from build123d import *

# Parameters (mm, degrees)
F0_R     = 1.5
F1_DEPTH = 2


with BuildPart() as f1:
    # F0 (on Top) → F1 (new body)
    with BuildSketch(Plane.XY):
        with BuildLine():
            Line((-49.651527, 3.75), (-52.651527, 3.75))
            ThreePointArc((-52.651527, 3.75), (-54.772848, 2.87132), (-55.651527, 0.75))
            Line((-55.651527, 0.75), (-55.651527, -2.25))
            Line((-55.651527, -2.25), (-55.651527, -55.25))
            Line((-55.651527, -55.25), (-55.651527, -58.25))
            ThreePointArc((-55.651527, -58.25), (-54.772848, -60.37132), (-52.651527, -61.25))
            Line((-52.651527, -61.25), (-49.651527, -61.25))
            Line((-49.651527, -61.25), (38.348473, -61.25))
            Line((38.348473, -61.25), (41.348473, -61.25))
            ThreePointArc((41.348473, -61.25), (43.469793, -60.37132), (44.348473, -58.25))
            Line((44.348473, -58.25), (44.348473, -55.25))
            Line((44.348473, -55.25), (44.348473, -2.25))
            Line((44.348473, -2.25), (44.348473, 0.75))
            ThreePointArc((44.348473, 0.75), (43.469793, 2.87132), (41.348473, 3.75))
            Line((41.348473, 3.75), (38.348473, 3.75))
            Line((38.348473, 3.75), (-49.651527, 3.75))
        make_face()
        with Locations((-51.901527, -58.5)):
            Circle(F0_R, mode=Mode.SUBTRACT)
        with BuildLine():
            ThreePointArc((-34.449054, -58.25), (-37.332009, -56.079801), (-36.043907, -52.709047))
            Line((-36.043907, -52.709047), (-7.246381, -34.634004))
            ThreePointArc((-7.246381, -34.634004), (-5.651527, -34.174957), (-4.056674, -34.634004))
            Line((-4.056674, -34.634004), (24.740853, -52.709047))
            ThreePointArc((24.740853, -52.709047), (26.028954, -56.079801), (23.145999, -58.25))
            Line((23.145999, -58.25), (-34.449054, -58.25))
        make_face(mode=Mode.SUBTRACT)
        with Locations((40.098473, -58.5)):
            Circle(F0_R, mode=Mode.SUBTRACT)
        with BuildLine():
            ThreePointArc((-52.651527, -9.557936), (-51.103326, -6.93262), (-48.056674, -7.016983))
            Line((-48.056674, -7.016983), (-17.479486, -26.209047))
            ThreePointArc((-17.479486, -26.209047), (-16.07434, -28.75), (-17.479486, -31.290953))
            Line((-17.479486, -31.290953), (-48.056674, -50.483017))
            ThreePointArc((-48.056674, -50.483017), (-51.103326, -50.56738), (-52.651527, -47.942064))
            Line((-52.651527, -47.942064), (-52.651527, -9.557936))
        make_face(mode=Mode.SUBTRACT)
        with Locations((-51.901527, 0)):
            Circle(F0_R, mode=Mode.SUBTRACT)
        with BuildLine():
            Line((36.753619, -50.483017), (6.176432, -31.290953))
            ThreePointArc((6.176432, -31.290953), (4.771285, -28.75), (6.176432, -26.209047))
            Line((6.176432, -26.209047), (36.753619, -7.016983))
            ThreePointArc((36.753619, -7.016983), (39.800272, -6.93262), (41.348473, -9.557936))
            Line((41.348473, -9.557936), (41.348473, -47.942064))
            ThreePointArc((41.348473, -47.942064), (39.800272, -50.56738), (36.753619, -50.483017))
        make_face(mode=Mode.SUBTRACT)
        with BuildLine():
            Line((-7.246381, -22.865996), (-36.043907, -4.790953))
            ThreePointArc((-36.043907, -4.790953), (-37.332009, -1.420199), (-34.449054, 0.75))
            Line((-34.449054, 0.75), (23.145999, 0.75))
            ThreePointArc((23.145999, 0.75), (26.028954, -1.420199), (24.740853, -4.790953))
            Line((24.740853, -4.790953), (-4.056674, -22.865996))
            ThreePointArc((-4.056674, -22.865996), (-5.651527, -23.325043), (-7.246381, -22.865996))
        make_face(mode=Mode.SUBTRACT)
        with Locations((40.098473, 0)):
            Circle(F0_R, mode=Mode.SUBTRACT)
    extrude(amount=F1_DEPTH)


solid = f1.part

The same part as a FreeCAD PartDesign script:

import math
import FreeCAD as App
import Part
import Sketcher
from FreeCAD import Vector

doc = App.newDocument("Part")
body = doc.addObject("PartDesign::Body", "Body")

# Sketch on XY plane
sketch1 = doc.addObject("Sketcher::SketchObject", "Sketch")
body.addObject(sketch1)
sketch1.AttachmentSupport = (doc.XY_Plane, [""])
sketch1.MapMode = "FlatFace"
sketch1.addGeometry(Part.ArcOfCircle(Part.Circle(Vector(-52.651528, 0.750001, 0), Vector(0, 0, 1), 2.999999), math.radians(89.99999), math.radians(180.00001)), False)
sketch1.addGeometry(Part.LineSegment(Vector(-55.651527, 0.75, 0), Vector(-55.651527, -58.25, 0)), False)
sketch1.addGeometry(Part.ArcOfCircle(Part.Circle(Vector(-52.651528, -58.250001, 0), Vector(0, 0, 1), 2.999999), math.radians(179.99999), math.radians(270.00001)), False)
sketch1.addGeometry(Part.LineSegment(Vector(-52.651527, -61.25, 0), Vector(41.348473, -61.25, 0)), False)
sketch1.addGeometry(Part.ArcOfCircle(Part.Circle(Vector(41.348472, -58.249999, 0), Vector(0, 0, 1), 3.000001), math.radians(-89.999978), math.radians(-0.000022)), False)
sketch1.addGeometry(Part.LineSegment(Vector(44.348473, -58.25, 0), Vector(44.348473, 0.75, 0)), False)
sketch1.addGeometry(Part.ArcOfCircle(Part.Circle(Vector(41.348472, 0.749999, 0), Vector(0, 0, 1), 3.000001), math.radians(0.000022), math.radians(89.999978)), False)
sketch1.addGeometry(Part.LineSegment(Vector(41.348473, 3.75, 0), Vector(-52.651527, 3.75, 0)), False)
sketch1.addGeometry(Part.Circle(Vector(-51.901527, -58.5, 0), Vector(0, 0, 1), 1.5), False)
sketch1.addGeometry(Part.LineSegment(Vector(23.145999, -58.25, 0), Vector(-34.449054, -58.25, 0)), False)
sketch1.addGeometry(Part.ArcOfCircle(Part.Circle(Vector(-34.449054, -55.25, 0), Vector(0, 0, 1), 3), math.radians(122.114822), math.radians(270)), False)
sketch1.addGeometry(Part.LineSegment(Vector(-36.043907, -52.709047, 0), Vector(-7.246381, -34.634004, 0)), False)
sketch1.addGeometry(Part.ArcOfCircle(Part.Circle(Vector(-5.651528, -37.174957, 0), Vector(0, 0, 1), 3), math.radians(57.885167), math.radians(122.114833)), False)
sketch1.addGeometry(Part.LineSegment(Vector(-4.056674, -34.634004, 0), Vector(24.740853, -52.709047, 0)), False)
sketch1.addGeometry(Part.ArcOfCircle(Part.Circle(Vector(23.145999, -55.25, 0), Vector(0, 0, 1), 3), math.radians(-89.999994), math.radians(57.885154)), False)
sketch1.addGeometry(Part.Circle(Vector(40.098473, -58.5, 0), Vector(0, 0, 1), 1.5), False)
sketch1.addGeometry(Part.LineSegment(Vector(-52.651527, -47.942064, 0), Vector(-52.651527, -9.557936, 0)), False)
sketch1.addGeometry(Part.ArcOfCircle(Part.Circle(Vector(-49.651528, -9.557935, 0), Vector(0, 0, 1), 2.999999), math.radians(57.885147), math.radians(180.000027)), False)
sketch1.addGeometry(Part.LineSegment(Vector(-48.056674, -7.016983, 0), Vector(-17.479486, -26.209047, 0)), False)
sketch1.addGeometry(Part.ArcOfCircle(Part.Circle(Vector(-19.074341, -28.75, 0), Vector(0, 0, 1), 3.000001), math.radians(-57.885153), math.radians(57.885153)), False)
sketch1.addGeometry(Part.LineSegment(Vector(-17.479486, -31.290953, 0), Vector(-48.056674, -50.483017, 0)), False)
sketch1.addGeometry(Part.ArcOfCircle(Part.Circle(Vector(-49.651528, -47.942065, 0), Vector(0, 0, 1), 2.999999), math.radians(179.999973), math.radians(302.114853)), False)
sketch1.addGeometry(Part.Circle(Vector(-51.901527, 0, 0), Vector(0, 0, 1), 1.5), False)
sketch1.addGeometry(Part.ArcOfCircle(Part.Circle(Vector(38.348473, -47.942065, 0), Vector(0, 0, 1), 3), math.radians(-122.114858), math.radians(0.000021)), False)
sketch1.addGeometry(Part.LineSegment(Vector(36.753619, -50.483017, 0), Vector(6.176432, -31.290953, 0)), False)
sketch1.addGeometry(Part.ArcOfCircle(Part.Circle(Vector(7.771284, -28.75, 0), Vector(0, 0, 1), 2.999999), math.radians(122.114813), math.radians(237.885187)), False)
sketch1.addGeometry(Part.LineSegment(Vector(6.176432, -26.209047, 0), Vector(36.753619, -7.016983, 0)), False)
sketch1.addGeometry(Part.ArcOfCircle(Part.Circle(Vector(38.348473, -9.557935, 0), Vector(0, 0, 1), 3), math.radians(-0.000021), math.radians(122.114858)), False)
sketch1.addGeometry(Part.LineSegment(Vector(41.348473, -9.557936, 0), Vector(41.348473, -47.942064, 0)), False)
sketch1.addGeometry(Part.ArcOfCircle(Part.Circle(Vector(-5.651528, -20.325043, 0), Vector(0, 0, 1), 3), math.radians(-122.114833), math.radians(-57.885167)), False)
sketch1.addGeometry(Part.LineSegment(Vector(-7.246381, -22.865996, 0), Vector(-36.043907, -4.790953, 0)), False)
sketch1.addGeometry(Part.ArcOfCircle(Part.Circle(Vector(-34.449054, -2.25, 0), Vector(0, 0, 1), 3), math.radians(90), math.radians(237.885178)), False)
sketch1.addGeometry(Part.LineSegment(Vector(-34.449054, 0.75, 0), Vector(23.145999, 0.75, 0)), False)
sketch1.addGeometry(Part.ArcOfCircle(Part.Circle(Vector(23.145999, -2.25, 0), Vector(0, 0, 1), 3), math.radians(-57.885154), math.radians(89.999994)), False)
sketch1.addGeometry(Part.LineSegment(Vector(24.740853, -4.790953, 0), Vector(-4.056674, -22.865996, 0)), False)
sketch1.addGeometry(Part.Circle(Vector(40.098473, 0, 0), Vector(0, 0, 1), 1.5), False)
sketch1.addConstraint(Sketcher.Constraint("Tangent", 0, 2, 1, 1))
sketch1.addConstraint(Sketcher.Constraint("Tangent", 1, 2, 2, 1))
sketch1.addConstraint(Sketcher.Constraint("Tangent", 2, 2, 3, 1))
sketch1.addConstraint(Sketcher.Constraint("Tangent", 3, 2, 4, 1))
sketch1.addConstraint(Sketcher.Constraint("Tangent", 4, 2, 5, 1))
sketch1.addConstraint(Sketcher.Constraint("Tangent", 5, 2, 6, 1))
sketch1.addConstraint(Sketcher.Constraint("Tangent", 6, 2, 7, 1))
sketch1.addConstraint(Sketcher.Constraint("Tangent", 7, 2, 0, 1))
sketch1.addConstraint(Sketcher.Constraint("Tangent", 9, 2, 10, 2))
sketch1.addConstraint(Sketcher.Constraint("Tangent", 10, 1, 11, 1))
sketch1.addConstraint(Sketcher.Constraint("Tangent", 11, 2, 12, 2))
sketch1.addConstraint(Sketcher.Constraint("Tangent", 12, 1, 13, 1))
sketch1.addConstraint(Sketcher.Constraint("Tangent", 13, 2, 14, 2))
sketch1.addConstraint(Sketcher.Constraint("Tangent", 14, 1, 9, 1))
sketch1.addConstraint(Sketcher.Constraint("Tangent", 16, 2, 17, 2))
sketch1.addConstraint(Sketcher.Constraint("Tangent", 17, 1, 18, 1))
sketch1.addConstraint(Sketcher.Constraint("Tangent", 18, 2, 19, 2))
sketch1.addConstraint(Sketcher.Constraint("Tangent", 19, 1, 20, 1))
sketch1.addConstraint(Sketcher.Constraint("Tangent", 20, 2, 21, 2))
sketch1.addConstraint(Sketcher.Constraint("Tangent", 21, 1, 16, 1))
sketch1.addConstraint(Sketcher.Constraint("Tangent", 23, 1, 24, 1))
sketch1.addConstraint(Sketcher.Constraint("Tangent", 24, 2, 25, 2))
sketch1.addConstraint(Sketcher.Constraint("Tangent", 25, 1, 26, 1))
sketch1.addConstraint(Sketcher.Constraint("Tangent", 26, 2, 27, 2))
sketch1.addConstraint(Sketcher.Constraint("Tangent", 27, 1, 28, 1))
sketch1.addConstraint(Sketcher.Constraint("Tangent", 28, 2, 23, 2))
sketch1.addConstraint(Sketcher.Constraint("Tangent", 29, 1, 30, 1))
sketch1.addConstraint(Sketcher.Constraint("Tangent", 30, 2, 31, 2))
sketch1.addConstraint(Sketcher.Constraint("Tangent", 31, 1, 32, 1))
sketch1.addConstraint(Sketcher.Constraint("Tangent", 32, 2, 33, 2))
sketch1.addConstraint(Sketcher.Constraint("Tangent", 33, 1, 34, 1))
sketch1.addConstraint(Sketcher.Constraint("Tangent", 34, 2, 29, 2))
sketch1.addConstraint(Sketcher.Constraint("Vertical", 1))
sketch1.addConstraint(Sketcher.Constraint("Horizontal", 3))
sketch1.addConstraint(Sketcher.Constraint("Vertical", 5))
sketch1.addConstraint(Sketcher.Constraint("Horizontal", 7))
sketch1.addConstraint(Sketcher.Constraint("Horizontal", 9))
sketch1.addConstraint(Sketcher.Constraint("Vertical", 16))
sketch1.addConstraint(Sketcher.Constraint("Vertical", 28))
sketch1.addConstraint(Sketcher.Constraint("Horizontal", 32))
sketch1.addConstraint(Sketcher.Constraint("Equal", 0, 2))
sketch1.addConstraint(Sketcher.Constraint("Equal", 2, 4))
sketch1.addConstraint(Sketcher.Constraint("Equal", 4, 6))
sketch1.addConstraint(Sketcher.Constraint("Equal", 6, 10))
sketch1.addConstraint(Sketcher.Constraint("Equal", 10, 12))
sketch1.addConstraint(Sketcher.Constraint("Equal", 12, 14))
sketch1.addConstraint(Sketcher.Constraint("Equal", 8, 15))
sketch1.addConstraint(Sketcher.Constraint("Equal", 14, 17))
sketch1.addConstraint(Sketcher.Constraint("Equal", 17, 19))
sketch1.addConstraint(Sketcher.Constraint("Equal", 19, 21))
sketch1.addConstraint(Sketcher.Constraint("Equal", 15, 22))
sketch1.addConstraint(Sketcher.Constraint("Equal", 21, 23))
sketch1.addConstraint(Sketcher.Constraint("Equal", 23, 25))
sketch1.addConstraint(Sketcher.Constraint("Equal", 25, 27))
sketch1.addConstraint(Sketcher.Constraint("Equal", 27, 29))
sketch1.addConstraint(Sketcher.Constraint("Equal", 29, 31))
sketch1.addConstraint(Sketcher.Constraint("Equal", 31, 33))
sketch1.addConstraint(Sketcher.Constraint("Equal", 22, 35))
sketch1.addConstraint(Sketcher.Constraint("PointOnObject", 22, 3, -1))
sketch1.addConstraint(Sketcher.Constraint("PointOnObject", 35, 3, -1))
sketch1.addConstraint(Sketcher.Constraint("Parallel", 13, 18))
sketch1.addConstraint(Sketcher.Constraint("Parallel", 11, 20))
sketch1.addConstraint(Sketcher.Constraint("Parallel", 18, 24))
sketch1.addConstraint(Sketcher.Constraint("Parallel", 20, 26))
sketch1.addConstraint(Sketcher.Constraint("Parallel", 24, 30))
sketch1.addConstraint(Sketcher.Constraint("Parallel", 26, 34))
sketch1.addConstraint(Sketcher.Constraint("Horizontal", 8, 3, 15, 3))
sketch1.addConstraint(Sketcher.Constraint("Horizontal", 21, 3, 23, 3))
sketch1.addConstraint(Sketcher.Constraint("Horizontal", 19, 3, 25, 3))
sketch1.addConstraint(Sketcher.Constraint("Horizontal", 17, 3, 27, 3))
sketch1.addConstraint(Sketcher.Constraint("Horizontal", 4, 2, 9, 2))
sketch1.addConstraint(Sketcher.Constraint("Horizontal", 5, 2, 31, 1))
sketch1.addConstraint(Sketcher.Constraint("Vertical", 8, 3, 22, 3))
sketch1.addConstraint(Sketcher.Constraint("Vertical", 12, 3, 29, 3))
sketch1.addConstraint(Sketcher.Constraint("Vertical", 10, 3, 31, 3))
sketch1.addConstraint(Sketcher.Constraint("Vertical", 15, 3, 35, 3))
sketch1.addConstraint(Sketcher.Constraint("Vertical", 7, 2, 16, 2))
sketch1.addConstraint(Sketcher.Constraint("Vertical", 6, 2, 27, 1))
sketch1.addConstraint(Sketcher.Constraint("Diameter", 8, 3.0))
sketch1.addConstraint(Sketcher.Constraint("Radius", 0, 2.999999))
sketch1.addConstraint(Sketcher.Constraint("DistanceX", 3, 1, 3, 2, 94.0))
sketch1.addConstraint(Sketcher.Constraint("DistanceY", 1, 2, 1, 1, 59.0))
sketch1.addConstraint(Sketcher.Constraint("DistanceX", 12, 3, 4, 3, 46.999999))
sketch1.addConstraint(Sketcher.Constraint("DistanceY", 8, 3, -1, 1, 58.5))
sketch1.addConstraint(Sketcher.Constraint("DistanceY", 10, 3, 19, 3, 26.5))
sketch1.addConstraint(Sketcher.Constraint("DistanceY", -1, 1, 0, 3, 0.750001))
sketch1.addConstraint(Sketcher.Constraint("DistanceX", 2, 3, 8, 3, 0.750001))
sketch1.addConstraint(Sketcher.Constraint("DistanceX", 15, 3, 4, 3, 1.249999))
sketch1.addConstraint(Sketcher.Constraint("DistanceX", -1, 1, 14, 3, 23.145999))
sketch1.addConstraint(Sketcher.Constraint("DistanceY", 16, 1, 16, 2, 38.384128))
sketch1.addConstraint(Sketcher.Constraint("Distance", 11, 34.000069))
sketch1.addConstraint(Sketcher.Constraint("DistanceX", 9, 2, 9, 1, 57.595053))
pad1 = doc.addObject("PartDesign::Pad", "Pad")
body.addObject(pad1)
pad1.Profile = sketch1
pad1.Length = 2

doc.recompute()
